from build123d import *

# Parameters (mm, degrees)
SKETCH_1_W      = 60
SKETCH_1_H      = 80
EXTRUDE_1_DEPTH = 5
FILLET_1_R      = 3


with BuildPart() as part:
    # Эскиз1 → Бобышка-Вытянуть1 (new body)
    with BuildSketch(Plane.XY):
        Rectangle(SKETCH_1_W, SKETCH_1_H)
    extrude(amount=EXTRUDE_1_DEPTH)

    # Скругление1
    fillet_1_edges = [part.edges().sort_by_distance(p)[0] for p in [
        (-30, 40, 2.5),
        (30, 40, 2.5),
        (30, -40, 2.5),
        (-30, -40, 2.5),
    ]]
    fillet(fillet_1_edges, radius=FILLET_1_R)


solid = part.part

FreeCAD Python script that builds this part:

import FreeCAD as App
import Part
import Sketcher


def edges_at(feature, points):
    """Names of the edges that pass closest to the given points."""
    edges = feature.Shape.Edges
    near = lambda p: min(range(len(edges)), key=lambda i: edges[i].distToShape(Part.Vertex(*p))[0])
    return sorted({f"Edge{near(p) + 1}" for p in points})


def add_polygon(sketch, points):
    """Adds a closed chain of lines whose ends are joined by coincident constraints."""
    first, n = sketch.GeometryCount, len(points)
    for a, b in zip(points, points[1:] + points[:1]):
        sketch.addGeometry(Part.LineSegment(App.Vector(*a, 0), App.Vector(*b, 0)), False)
    for i in range(n):
        sketch.addConstraint(Sketcher.Constraint("Coincident", first + i, 2, first + (i + 1) % n, 1))

doc = App.newDocument("Part")
body = doc.addObject("PartDesign::Body", "Body")

sketch1 = doc.addObject("Sketcher::SketchObject", "Sketch")
body.addObject(sketch1)
sketch1.AttachmentSupport = (doc.XY_Plane, [""])
sketch1.MapMode = "FlatFace"
add_polygon(sketch1, [(-30, 40), (-30, -40), (30, -40), (30, 40)])
sketch1.addConstraint(Sketcher.Constraint("Vertical", 0))
sketch1.addConstraint(Sketcher.Constraint("Horizontal", 1))
sketch1.addConstraint(Sketcher.Constraint("Vertical", 2))
sketch1.addConstraint(Sketcher.Constraint("Horizontal", 3))
sketch1.addConstraint(Sketcher.Constraint("Symmetric", 0, 2, 2, 2, -1, 1))
sketch1.addConstraint(Sketcher.Constraint("DistanceX", 1, 1, 1, 2, 60.0))
sketch1.addConstraint(Sketcher.Constraint("DistanceY", 0, 2, 0, 1, 80.0))
pad1 = doc.addObject("PartDesign::Pad", "Pad")
body.addObject(pad1)
pad1.Profile = sketch1
pad1.Length = 5
doc.recompute()

fillet = doc.addObject("PartDesign::Fillet", "Fillet")
body.addObject(fillet)
fillet.Base = (pad1, edges_at(pad1, [
    (-30, 40, 2.5),
    (30, 40, 2.5),
    (30, -40, 2.5),
    (-30, -40, 2.5),
]))
fillet.Radius = 3

doc.recompute()
